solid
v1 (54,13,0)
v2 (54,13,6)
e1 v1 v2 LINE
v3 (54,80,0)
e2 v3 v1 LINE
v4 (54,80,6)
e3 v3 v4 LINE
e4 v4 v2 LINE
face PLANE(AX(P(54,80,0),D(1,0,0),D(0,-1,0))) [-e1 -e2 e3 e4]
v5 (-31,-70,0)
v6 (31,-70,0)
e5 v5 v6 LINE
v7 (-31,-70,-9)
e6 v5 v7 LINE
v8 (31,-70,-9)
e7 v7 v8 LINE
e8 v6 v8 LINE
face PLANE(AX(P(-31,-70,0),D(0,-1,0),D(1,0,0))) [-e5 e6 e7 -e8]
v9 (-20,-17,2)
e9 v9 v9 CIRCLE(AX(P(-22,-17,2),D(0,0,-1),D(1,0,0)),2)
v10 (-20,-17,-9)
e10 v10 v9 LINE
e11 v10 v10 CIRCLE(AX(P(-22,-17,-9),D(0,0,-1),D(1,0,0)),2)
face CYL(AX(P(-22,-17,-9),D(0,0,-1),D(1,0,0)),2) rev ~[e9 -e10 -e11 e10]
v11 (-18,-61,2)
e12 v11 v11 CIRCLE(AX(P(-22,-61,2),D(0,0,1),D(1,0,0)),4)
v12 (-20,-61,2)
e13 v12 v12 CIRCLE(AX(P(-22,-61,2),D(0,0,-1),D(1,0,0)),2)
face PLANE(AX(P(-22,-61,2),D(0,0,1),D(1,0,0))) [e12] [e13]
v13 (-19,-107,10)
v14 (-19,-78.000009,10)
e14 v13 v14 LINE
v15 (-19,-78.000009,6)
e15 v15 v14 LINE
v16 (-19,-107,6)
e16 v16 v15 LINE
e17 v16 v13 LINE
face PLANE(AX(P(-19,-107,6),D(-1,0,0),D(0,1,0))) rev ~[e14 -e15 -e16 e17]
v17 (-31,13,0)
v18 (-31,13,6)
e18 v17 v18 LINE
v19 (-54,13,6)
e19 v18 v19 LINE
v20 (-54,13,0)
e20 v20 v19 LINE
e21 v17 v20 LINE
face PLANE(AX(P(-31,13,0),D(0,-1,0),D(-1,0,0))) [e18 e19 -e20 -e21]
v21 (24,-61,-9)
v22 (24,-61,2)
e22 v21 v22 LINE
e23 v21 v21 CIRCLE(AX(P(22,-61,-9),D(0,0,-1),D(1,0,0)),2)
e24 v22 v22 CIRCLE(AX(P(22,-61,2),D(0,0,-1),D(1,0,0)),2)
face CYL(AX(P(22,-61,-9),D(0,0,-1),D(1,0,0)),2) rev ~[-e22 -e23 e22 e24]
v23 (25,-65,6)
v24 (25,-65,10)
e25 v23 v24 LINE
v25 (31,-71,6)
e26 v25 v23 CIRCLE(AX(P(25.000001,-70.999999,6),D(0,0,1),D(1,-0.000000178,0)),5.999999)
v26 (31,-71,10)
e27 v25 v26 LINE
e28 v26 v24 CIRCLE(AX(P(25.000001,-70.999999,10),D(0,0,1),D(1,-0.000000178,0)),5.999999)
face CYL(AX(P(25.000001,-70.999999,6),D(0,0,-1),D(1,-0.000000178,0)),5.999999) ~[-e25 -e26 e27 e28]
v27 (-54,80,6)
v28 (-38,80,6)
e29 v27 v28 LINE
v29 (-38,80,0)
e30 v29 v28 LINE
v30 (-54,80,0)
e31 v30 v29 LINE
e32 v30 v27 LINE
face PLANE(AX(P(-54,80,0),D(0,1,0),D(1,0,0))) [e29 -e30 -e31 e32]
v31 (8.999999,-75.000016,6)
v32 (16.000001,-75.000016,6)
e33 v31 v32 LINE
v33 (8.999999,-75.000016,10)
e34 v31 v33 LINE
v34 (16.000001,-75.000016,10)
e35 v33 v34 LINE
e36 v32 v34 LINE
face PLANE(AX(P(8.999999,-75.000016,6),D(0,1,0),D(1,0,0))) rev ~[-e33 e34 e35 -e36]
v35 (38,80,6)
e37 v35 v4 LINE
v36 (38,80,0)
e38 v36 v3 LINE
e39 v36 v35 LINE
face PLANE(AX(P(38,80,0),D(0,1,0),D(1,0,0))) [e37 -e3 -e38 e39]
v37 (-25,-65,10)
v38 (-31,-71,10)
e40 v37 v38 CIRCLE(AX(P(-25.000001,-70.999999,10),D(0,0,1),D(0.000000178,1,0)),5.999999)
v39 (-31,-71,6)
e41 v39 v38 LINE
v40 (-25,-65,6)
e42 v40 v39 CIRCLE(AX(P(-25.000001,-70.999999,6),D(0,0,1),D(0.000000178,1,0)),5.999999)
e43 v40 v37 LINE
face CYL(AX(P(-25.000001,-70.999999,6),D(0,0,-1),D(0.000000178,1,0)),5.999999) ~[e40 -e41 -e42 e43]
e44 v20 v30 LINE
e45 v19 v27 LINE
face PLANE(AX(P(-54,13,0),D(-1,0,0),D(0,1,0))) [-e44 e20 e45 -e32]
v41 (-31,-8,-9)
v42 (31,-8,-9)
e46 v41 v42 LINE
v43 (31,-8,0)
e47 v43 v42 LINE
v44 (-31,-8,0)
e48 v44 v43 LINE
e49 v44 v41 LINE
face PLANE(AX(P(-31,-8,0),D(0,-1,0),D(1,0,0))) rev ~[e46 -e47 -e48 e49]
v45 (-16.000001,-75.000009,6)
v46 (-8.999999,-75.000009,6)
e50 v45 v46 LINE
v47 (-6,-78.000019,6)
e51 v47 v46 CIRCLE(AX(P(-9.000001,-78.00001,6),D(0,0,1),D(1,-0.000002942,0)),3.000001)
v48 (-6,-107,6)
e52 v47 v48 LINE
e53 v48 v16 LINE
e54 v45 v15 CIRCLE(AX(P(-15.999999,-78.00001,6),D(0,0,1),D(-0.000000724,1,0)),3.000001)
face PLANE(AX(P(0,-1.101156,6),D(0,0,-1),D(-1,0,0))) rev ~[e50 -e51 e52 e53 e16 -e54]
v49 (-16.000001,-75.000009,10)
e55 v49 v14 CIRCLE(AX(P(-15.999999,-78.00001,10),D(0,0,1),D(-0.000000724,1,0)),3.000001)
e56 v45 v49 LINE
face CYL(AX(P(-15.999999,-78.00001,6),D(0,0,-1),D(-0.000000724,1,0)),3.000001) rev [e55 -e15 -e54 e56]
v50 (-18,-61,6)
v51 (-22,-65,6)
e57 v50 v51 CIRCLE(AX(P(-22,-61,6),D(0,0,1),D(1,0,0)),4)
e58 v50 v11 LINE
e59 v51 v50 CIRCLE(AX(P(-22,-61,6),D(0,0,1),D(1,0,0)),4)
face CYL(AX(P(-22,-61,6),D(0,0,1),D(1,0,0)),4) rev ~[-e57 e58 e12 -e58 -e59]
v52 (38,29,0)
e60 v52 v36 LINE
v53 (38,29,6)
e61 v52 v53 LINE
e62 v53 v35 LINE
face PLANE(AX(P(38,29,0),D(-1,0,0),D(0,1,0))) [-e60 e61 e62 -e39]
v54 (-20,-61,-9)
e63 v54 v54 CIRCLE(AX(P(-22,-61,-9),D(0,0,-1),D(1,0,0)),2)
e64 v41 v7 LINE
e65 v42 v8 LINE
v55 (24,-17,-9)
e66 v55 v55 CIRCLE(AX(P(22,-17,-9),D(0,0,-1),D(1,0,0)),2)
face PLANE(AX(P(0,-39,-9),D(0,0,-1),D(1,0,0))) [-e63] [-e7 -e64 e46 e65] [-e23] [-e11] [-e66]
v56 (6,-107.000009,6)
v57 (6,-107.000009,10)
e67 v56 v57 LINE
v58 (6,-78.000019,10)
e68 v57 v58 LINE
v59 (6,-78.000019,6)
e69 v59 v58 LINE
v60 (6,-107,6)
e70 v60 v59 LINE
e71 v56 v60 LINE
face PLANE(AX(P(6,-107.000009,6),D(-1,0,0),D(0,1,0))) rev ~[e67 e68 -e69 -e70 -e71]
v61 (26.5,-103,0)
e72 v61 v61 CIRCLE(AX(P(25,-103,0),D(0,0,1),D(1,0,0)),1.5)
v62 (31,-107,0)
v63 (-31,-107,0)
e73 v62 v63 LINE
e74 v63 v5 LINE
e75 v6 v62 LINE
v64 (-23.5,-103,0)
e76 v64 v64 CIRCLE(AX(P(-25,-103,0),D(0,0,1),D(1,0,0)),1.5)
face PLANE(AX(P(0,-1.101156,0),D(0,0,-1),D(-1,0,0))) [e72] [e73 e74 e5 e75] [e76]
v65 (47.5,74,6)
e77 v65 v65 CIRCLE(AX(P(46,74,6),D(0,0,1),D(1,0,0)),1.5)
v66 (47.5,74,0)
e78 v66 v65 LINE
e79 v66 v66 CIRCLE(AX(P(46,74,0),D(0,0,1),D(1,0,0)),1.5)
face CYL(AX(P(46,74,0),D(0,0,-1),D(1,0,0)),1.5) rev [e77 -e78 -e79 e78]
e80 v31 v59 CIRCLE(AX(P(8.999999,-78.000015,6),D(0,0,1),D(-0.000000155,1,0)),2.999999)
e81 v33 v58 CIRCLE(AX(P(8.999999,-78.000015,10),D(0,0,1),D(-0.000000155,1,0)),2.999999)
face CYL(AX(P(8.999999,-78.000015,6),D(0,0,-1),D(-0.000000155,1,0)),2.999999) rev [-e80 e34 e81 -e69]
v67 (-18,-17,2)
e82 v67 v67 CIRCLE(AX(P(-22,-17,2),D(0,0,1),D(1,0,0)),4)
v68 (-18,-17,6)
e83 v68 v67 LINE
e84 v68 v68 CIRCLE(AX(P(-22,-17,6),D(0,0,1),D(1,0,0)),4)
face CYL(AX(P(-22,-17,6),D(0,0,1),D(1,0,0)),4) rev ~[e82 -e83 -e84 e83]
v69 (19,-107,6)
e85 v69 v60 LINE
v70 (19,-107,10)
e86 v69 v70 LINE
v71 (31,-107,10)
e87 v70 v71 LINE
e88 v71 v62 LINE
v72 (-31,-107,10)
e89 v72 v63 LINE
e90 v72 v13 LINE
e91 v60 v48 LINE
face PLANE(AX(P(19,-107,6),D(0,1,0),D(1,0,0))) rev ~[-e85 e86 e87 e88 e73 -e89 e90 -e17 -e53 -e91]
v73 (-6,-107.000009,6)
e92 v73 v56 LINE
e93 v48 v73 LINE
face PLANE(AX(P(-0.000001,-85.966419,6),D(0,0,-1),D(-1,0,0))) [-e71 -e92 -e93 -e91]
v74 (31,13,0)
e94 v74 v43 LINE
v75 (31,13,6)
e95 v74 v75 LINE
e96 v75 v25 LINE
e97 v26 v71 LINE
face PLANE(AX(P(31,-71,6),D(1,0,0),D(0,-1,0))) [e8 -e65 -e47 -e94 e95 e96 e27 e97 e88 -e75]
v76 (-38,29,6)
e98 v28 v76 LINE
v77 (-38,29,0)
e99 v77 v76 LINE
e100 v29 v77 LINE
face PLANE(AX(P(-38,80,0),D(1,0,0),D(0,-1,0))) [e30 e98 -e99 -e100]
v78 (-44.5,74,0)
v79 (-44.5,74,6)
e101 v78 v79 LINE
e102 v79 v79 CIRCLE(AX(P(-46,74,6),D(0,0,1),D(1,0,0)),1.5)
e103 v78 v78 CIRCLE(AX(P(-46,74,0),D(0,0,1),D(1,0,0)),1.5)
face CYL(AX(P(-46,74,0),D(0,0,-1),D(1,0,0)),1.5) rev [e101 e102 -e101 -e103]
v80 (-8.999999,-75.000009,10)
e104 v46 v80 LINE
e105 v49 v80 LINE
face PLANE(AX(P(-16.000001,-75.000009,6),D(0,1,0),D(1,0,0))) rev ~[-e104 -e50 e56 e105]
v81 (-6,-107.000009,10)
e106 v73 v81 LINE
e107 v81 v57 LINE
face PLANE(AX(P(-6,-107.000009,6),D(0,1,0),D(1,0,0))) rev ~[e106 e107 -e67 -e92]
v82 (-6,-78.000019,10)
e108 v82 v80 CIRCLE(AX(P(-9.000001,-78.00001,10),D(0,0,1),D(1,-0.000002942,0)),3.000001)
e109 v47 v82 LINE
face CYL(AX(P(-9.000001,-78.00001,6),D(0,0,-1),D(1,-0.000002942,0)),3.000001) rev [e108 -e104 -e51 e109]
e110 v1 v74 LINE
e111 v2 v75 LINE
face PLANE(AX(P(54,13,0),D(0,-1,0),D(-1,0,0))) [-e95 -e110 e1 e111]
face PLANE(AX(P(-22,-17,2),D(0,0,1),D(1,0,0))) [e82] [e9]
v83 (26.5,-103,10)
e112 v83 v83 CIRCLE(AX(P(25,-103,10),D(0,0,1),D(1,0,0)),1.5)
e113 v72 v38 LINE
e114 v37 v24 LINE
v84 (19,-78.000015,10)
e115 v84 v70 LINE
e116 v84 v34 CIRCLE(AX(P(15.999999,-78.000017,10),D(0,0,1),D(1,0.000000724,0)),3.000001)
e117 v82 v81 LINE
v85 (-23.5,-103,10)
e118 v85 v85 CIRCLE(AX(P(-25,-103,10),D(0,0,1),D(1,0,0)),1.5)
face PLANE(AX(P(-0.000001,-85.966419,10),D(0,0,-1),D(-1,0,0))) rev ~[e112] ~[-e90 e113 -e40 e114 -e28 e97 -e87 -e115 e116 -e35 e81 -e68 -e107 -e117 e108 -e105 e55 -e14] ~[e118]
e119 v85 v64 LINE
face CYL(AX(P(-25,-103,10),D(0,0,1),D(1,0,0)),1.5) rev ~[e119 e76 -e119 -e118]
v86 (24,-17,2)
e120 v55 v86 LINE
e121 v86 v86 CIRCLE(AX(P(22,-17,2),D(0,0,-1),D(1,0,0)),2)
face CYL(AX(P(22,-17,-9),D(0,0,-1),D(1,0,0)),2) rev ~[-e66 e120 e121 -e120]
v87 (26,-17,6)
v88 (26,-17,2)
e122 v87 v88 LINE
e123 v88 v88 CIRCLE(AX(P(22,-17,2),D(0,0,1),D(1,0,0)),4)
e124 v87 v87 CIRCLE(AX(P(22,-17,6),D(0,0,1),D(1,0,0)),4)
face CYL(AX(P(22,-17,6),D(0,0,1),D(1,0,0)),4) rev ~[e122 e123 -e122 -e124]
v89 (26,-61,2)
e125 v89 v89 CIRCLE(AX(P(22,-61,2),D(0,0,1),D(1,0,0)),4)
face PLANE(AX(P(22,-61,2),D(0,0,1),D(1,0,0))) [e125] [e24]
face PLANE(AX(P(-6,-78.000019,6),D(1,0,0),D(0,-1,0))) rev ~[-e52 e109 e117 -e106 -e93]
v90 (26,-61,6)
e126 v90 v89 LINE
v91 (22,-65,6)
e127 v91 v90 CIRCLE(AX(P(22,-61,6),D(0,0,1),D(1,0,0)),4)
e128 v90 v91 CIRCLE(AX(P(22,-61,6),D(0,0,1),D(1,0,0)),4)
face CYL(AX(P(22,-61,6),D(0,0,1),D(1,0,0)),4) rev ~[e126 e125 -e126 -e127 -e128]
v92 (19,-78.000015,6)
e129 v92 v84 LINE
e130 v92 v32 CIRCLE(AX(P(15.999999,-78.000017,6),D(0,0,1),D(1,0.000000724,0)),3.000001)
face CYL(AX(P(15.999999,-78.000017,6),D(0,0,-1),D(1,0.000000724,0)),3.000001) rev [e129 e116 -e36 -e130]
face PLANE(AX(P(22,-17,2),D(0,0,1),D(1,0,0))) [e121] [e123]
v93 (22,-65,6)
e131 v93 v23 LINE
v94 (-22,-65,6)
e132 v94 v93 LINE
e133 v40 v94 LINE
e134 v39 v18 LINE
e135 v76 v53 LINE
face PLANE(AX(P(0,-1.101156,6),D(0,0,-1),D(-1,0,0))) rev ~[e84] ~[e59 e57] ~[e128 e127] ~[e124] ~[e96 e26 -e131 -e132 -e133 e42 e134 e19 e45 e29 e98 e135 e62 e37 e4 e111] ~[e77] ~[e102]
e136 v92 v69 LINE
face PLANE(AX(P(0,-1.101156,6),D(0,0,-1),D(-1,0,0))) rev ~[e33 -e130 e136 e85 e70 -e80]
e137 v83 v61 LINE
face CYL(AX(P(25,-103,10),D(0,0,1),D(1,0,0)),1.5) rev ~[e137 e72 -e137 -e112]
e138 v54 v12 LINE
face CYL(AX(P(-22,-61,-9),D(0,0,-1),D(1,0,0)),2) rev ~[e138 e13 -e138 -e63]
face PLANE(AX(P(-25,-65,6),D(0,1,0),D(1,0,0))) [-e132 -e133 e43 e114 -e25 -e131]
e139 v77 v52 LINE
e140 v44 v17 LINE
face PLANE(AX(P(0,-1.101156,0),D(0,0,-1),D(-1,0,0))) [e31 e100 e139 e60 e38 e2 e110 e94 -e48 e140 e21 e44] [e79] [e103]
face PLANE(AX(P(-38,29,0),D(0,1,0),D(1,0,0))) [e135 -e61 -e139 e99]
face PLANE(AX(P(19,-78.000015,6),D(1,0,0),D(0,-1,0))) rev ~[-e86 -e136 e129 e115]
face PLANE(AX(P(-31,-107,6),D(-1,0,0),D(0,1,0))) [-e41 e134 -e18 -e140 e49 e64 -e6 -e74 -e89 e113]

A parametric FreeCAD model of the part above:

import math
import FreeCAD as App
import Part
import Sketcher
from FreeCAD import Vector
Q = App.Units.Quantity


def add_polygon(sketch, points):
    """Adds a closed chain of lines whose ends are joined by coincident constraints."""
    first, n = sketch.GeometryCount, len(points)
    for a, b in zip(points, points[1:] + points[:1]):
        sketch.addGeometry(Part.LineSegment(App.Vector(*a, 0), App.Vector(*b, 0)), False)
    for i in range(n):
        sketch.addConstraint(Sketcher.Constraint("Coincident", first + i, 2, first + (i + 1) % n, 1))

doc = App.newDocument("Part")
body = doc.addObject("PartDesign::Body", "Body")

sketch1 = body.newObject("Sketcher::SketchObject", "Sketch")
sketch1.AttachmentSupport = (doc.getObject("XY_Plane"), [""])
sketch1.MapMode = "FlatFace"
add_polygon(sketch1, [(38, 29), (-38, 29), (-38, 80), (-54, 80), (-54, 13), (-31, 13), (-31, -107), (31, -107), (31, 13), (54, 13), (54, 80), (38, 80)])
sketch1.addGeometry(Part.Circle(Vector(46, 74, 0), Vector(0, 0, 1), 1.5), False)
sketch1.addGeometry(Part.Circle(Vector(-46, 74, 0), Vector(0, 0, 1), 1.5), False)
sketch1.addConstraint([
    Sketcher.Constraint("Horizontal", 0),
    Sketcher.Constraint("Vertical", 1),
    Sketcher.Constraint("Horizontal", 2),
    Sketcher.Constraint("Vertical", 3),
    Sketcher.Constraint("Horizontal", 4),
    Sketcher.Constraint("Vertical", 5),
    Sketcher.Constraint("Horizontal", 6),
    Sketcher.Constraint("Vertical", 7),
    Sketcher.Constraint("Horizontal", 8),
    Sketcher.Constraint("Vertical", 9),
    Sketcher.Constraint("Horizontal", 10),
    Sketcher.Constraint("Vertical", 11),
    Sketcher.Constraint("Equal", 12, 13),
    Sketcher.Constraint("Symmetric", 12, 3, 13, 3, -2),
    Sketcher.Constraint("Symmetric", 4, 2, 7, 2, -2),
    Sketcher.Constraint("Symmetric", 2, 2, 9, 2, -2),
    Sketcher.Constraint("Equal", 2, 10),
    Sketcher.Constraint("Diameter", 12, Q("3 mm")),
    Sketcher.Constraint("DistanceX", 0, 2, 0, 1, Q("76 mm")),
    Sketcher.Constraint("DistanceX", 2, 2, 2, 1, Q("16 mm")),
    Sketcher.Constraint("DistanceX", 4, 1, 4, 2, Q("23 mm")),
    Sketcher.Constraint("DistanceY", 1, 1, 1, 2, Q("51 mm")),
    Sketcher.Constraint("DistanceY", 3, 2, 3, 1, Q("67 mm")),
    Sketcher.Constraint("DistanceY", 5, 2, 5, 1, Q("120 mm")),
    Sketcher.Constraint("DistanceX", -1, 1, 12, 3, Q("46 mm")),
    Sketcher.Constraint("DistanceY", -1, 1, 12, 3, Q("74 mm")),
    Sketcher.Constraint("DistanceY", -1, 1, 0, 2, Q("29 mm")),
])
pad1 = body.newObject("PartDesign::Pad", "Pad")
pad1.Profile = sketch1
pad1.Length = 6

sketch2 = body.newObject("Sketcher::SketchObject", "Sketch001")
sketch2.AttachmentSupport = (doc.getObject("XY_Plane"), [""])
sketch2.MapMode = "FlatFace"
sketch2.AttachmentOffset = App.Placement(Vector(0, 0, 6), App.Rotation())
sketch2.addGeometry([
    Part.LineSegment(Vector(31, -107, 0), Vector(31, -71, 0)),
    Part.ArcOfCircle(Part.Circle(Vector(25, -71, 0), Vector(0, 0, 1), 6), math.radians(0), math.radians(90)),
    Part.LineSegment(Vector(25, -65, 0), Vector(-25, -65, 0)),
    Part.ArcOfCircle(Part.Circle(Vector(-25, -71, 0), Vector(0, 0, 1), 6), math.radians(90), math.radians(180)),
    Part.LineSegment(Vector(-31, -71, 0), Vector(-31, -107, 0)),
    Part.LineSegment(Vector(-31, -107, 0), Vector(-19, -107, 0)),
    Part.LineSegment(Vector(-19, -107, 0), Vector(-19, -78, 0)),
    Part.ArcOfCircle(Part.Circle(Vector(-16, -78, 0), Vector(0, 0, 1), 3), math.radians(90), math.radians(180)),
    Part.LineSegment(Vector(-16, -75, 0), Vector(-9, -75, 0)),
    Part.ArcOfCircle(Part.Circle(Vector(-9, -78, 0), Vector(0, 0, 1), 3), math.radians(0), math.radians(90)),
    Part.LineSegment(Vector(-6, -78, 0), Vector(-6, -107, 0)),
    Part.LineSegment(Vector(-6, -107, 0), Vector(6, -107, 0)),
    Part.LineSegment(Vector(6, -107, 0), Vector(6, -78, 0)),
    Part.ArcOfCircle(Part.Circle(Vector(9, -78, 0), Vector(0, 0, 1), 3), math.radians(90), math.radians(180)),
    Part.LineSegment(Vector(9, -75, 0), Vector(16, -75, 0)),
    Part.ArcOfCircle(Part.Circle(Vector(16, -78, 0), Vector(0, 0, 1), 3), math.radians(0), math.radians(90)),
    Part.LineSegment(Vector(19, -78, 0), Vector(19, -107, 0)),
    Part.LineSegment(Vector(19, -107, 0), Vector(31, -107, 0)),
], False)
sketch2.addConstraint([
    Sketcher.Constraint("Tangent", 0, 2, 1, 1),
    Sketcher.Constraint("Tangent", 1, 2, 2, 1),
    Sketcher.Constraint("Tangent", 2, 2, 3, 1),
    Sketcher.Constraint("Tangent", 3, 2, 4, 1),
    Sketcher.Constraint("Coincident", 4, 2, 5, 1),
    Sketcher.Constraint("Coincident", 5, 2, 6, 1),
    Sketcher.Constraint("Tangent", 6, 2, 7, 2),
    Sketcher.Constraint("Tangent", 7, 1, 8, 1),
    Sketcher.Constraint("Tangent", 8, 2, 9, 2),
    Sketcher.Constraint("Coincident", 9, 1, 10, 1),
    Sketcher.Constraint("Coincident", 10, 2, 11, 1),
    Sketcher.Constraint("Coincident", 11, 2, 12, 1),
    Sketcher.Constraint("Tangent", 12, 2, 13, 2),
    Sketcher.Constraint("Tangent", 13, 1, 14, 1),
    Sketcher.Constraint("Tangent", 14, 2, 15, 2),
    Sketcher.Constraint("Tangent", 15, 1, 16, 1),
    Sketcher.Constraint("Coincident", 16, 2, 17, 1),
    Sketcher.Constraint("Coincident", 17, 2, 0, 1),
    Sketcher.Constraint("Vertical", 0),
    Sketcher.Constraint("Horizontal", 2),
    Sketcher.Constraint("Vertical", 4),
    Sketcher.Constraint("Horizontal", 5),
    Sketcher.Constraint("Vertical", 6),
    Sketcher.Constraint("Horizontal", 8),
    Sketcher.Constraint("Vertical", 10),
    Sketcher.Constraint("Horizontal", 11),
    Sketcher.Constraint("Vertical", 12),
    Sketcher.Constraint("Horizontal", 14),
    Sketcher.Constraint("Vertical", 16),
    Sketcher.Constraint("Horizontal", 17),
    Sketcher.Constraint("Equal", 1, 3),
    Sketcher.Constraint("Equal", 7, 9),
    Sketcher.Constraint("Equal", 9, 13),
    Sketcher.Constraint("Equal", 13, 15),
    Sketcher.Constraint("Symmetric", 9, 3, 13, 3, -2),
    Sketcher.Constraint("Symmetric", 5, 2, 16, 2, -2),
    Sketcher.Constraint("Horizontal", 15, 3, 9, 1),
    Sketcher.Constraint("Equal", 5, 11),
    Sketcher.Constraint("Equal", 11, 17),
    Sketcher.Constraint("Equal", 6, 10),
    Sketcher.Constraint("Radius", 1, Q("5.999999 mm")),
    Sketcher.Constraint("Radius", 7, Q("3.000001 mm")),
    Sketcher.Constraint("DistanceX", 2, 2, 2, 1, Q("50 mm")),
    Sketcher.Constraint("DistanceX", 5, 1, 5, 2, Q("12 mm")),
    Sketcher.Constraint("DistanceY", 0, 1, 0, 2, Q("36 mm")),
    Sketcher.Constraint("DistanceY", 1, 3, -1, 1, Q("70.999999 mm")),
    Sketcher.Constraint("DistanceY", 10, 2, 9, 3, Q("28.999999 mm")),
])
pad2 = body.newObject("PartDesign::Pad", "Pad001")
pad2.Profile = sketch2
pad2.Length = 4

sketch3 = body.newObject("Sketcher::SketchObject", "Sketch002")
sketch3.AttachmentSupport = (doc.getObject("XY_Plane"), [""])
sketch3.MapMode = "FlatFace"
sketch3.AttachmentOffset = App.Placement(Vector(0, 0, 10), App.Rotation())
sketch3.addGeometry([
    Part.Circle(Vector(-25, -103, 0), Vector(0, 0, 1), 1.5),
    Part.Circle(Vector(25, -103, 0), Vector(0, 0, 1), 1.5),
], False)
sketch3.addConstraint([
    Sketcher.Constraint("Equal", 0, 1),
    Sketcher.Constraint("Symmetric", 0, 3, 1, 3, -2),
    Sketcher.Constraint("Diameter", 0, Q("3 mm")),
    Sketcher.Constraint("DistanceX", 0, 3, -1, 1, Q("25 mm")),
    Sketcher.Constraint("DistanceY", 0, 3, -1, 1, Q("103 mm")),
])
pocket1 = body.newObject("PartDesign::Pocket", "Pocket")
pocket1.Profile = sketch3
pocket1.Length = 10

sketch4 = body.newObject("Sketcher::SketchObject", "Sketch003")
sketch4.AttachmentSupport = (doc.getObject("XY_Plane"), [""])
sketch4.MapMode = "FlatFace"
add_polygon(sketch4, [(-31, -70), (-31, -8), (31, -8), (31, -70)])
sketch4.addConstraint([
    Sketcher.Constraint("Vertical", 0),
    Sketcher.Constraint("Horizontal", 1),
    Sketcher.Constraint("Vertical", 2),
    Sketcher.Constraint("Horizontal", 3),
    Sketcher.Constraint("Equal", 3, 0),
    Sketcher.Constraint("DistanceX", 1, 1, 1, 2, Q("62 mm")),
    Sketcher.Constraint("DistanceX", 0, 2, -1, 1, Q("31 mm")),
    Sketcher.Constraint("DistanceY", 0, 2, -1, 1, Q("8 mm")),
])
pad3 = body.newObject("PartDesign::Pad", "Pad002")
pad3.Profile = sketch4
pad3.Length = 9
pad3.Reversed = True

sketch5 = body.newObject("Sketcher::SketchObject", "Sketch004")
sketch5.AttachmentSupport = (doc.getObject("XY_Plane"), [""])
sketch5.MapMode = "FlatFace"
sketch5.AttachmentOffset = App.Placement(Vector(0, 0, -9), App.Rotation())
sketch5.addGeometry([
    Part.Circle(Vector(-22, -61, 0), Vector(0, 0, 1), 2),
    Part.Circle(Vector(22, -61, 0), Vector(0, 0, 1), 2),
    Part.Circle(Vector(22, -17, 0), Vector(0, 0, 1), 2),
    Part.Circle(Vector(-22, -17, 0), Vector(0, 0, 1), 2),
], False)
sketch5.addConstraint([
    Sketcher.Constraint("Equal", 0, 1),
    Sketcher.Constraint("Equal", 1, 2),
    Sketcher.Constraint("Equal", 2, 3),
    Sketcher.Constraint("Symmetric", 0, 3, 1, 3, -2),
    Sketcher.Constraint("Symmetric", 2, 3, 3, 3, -2),
    Sketcher.Constraint("Vertical", 1, 3, 2, 3),
    Sketcher.Constraint("Diameter", 0, Q("4 mm")),
    Sketcher.Constraint("DistanceX", 0, 3, -1, 1, Q("22 mm")),
    Sketcher.Constraint("DistanceY", 0, 3, -1, 1, Q("61 mm")),
    Sketcher.Constraint("DistanceY", 2, 3, -1, 1, Q("17 mm")),
])
pocket2 = body.newObject("PartDesign::Pocket", "Pocket001")
pocket2.Profile = sketch5
pocket2.Length = 15
pocket2.Reversed = True

sketch6 = body.newObject("Sketcher::SketchObject", "Sketch005")
sketch6.AttachmentSupport = (doc.getObject("XY_Plane"), [""])
sketch6.MapMode = "FlatFace"
sketch6.AttachmentOffset = App.Placement(Vector(0, 0, 6), App.Rotation())
sketch6.addGeometry([
    Part.Circle(Vector(-22, -61, 0), Vector(0, 0, 1), 4),
    Part.Circle(Vector(22, -61, 0), Vector(0, 0, 1), 4),
    Part.Circle(Vector(22, -17, 0), Vector(0, 0, 1), 4),
    Part.Circle(Vector(-22, -17, 0), Vector(0, 0, 1), 4),
], False)
sketch6.addConstraint([
    Sketcher.Constraint("Equal", 0, 1),
    Sketcher.Constraint("Equal", 1, 2),
    Sketcher.Constraint("Equal", 2, 3),
    Sketcher.Constraint("Symmetric", 0, 3, 1, 3, -2),
    Sketcher.Constraint("Symmetric", 2, 3, 3, 3, -2),
    Sketcher.Constraint("Vertical", 1, 3, 2, 3),
    Sketcher.Constraint("Diameter", 0, Q("8 mm")),
    Sketcher.Constraint("DistanceX", 0, 3, -1, 1, Q("22 mm")),
    Sketcher.Constraint("DistanceY", 0, 3, -1, 1, Q("61 mm")),
    Sketcher.Constraint("DistanceY", 2, 3, -1, 1, Q("17 mm")),
])
pocket3 = body.newObject("PartDesign::Pocket", "Pocket002")
pocket3.Profile = sketch6
pocket3.Length = 4

doc.recompute()
